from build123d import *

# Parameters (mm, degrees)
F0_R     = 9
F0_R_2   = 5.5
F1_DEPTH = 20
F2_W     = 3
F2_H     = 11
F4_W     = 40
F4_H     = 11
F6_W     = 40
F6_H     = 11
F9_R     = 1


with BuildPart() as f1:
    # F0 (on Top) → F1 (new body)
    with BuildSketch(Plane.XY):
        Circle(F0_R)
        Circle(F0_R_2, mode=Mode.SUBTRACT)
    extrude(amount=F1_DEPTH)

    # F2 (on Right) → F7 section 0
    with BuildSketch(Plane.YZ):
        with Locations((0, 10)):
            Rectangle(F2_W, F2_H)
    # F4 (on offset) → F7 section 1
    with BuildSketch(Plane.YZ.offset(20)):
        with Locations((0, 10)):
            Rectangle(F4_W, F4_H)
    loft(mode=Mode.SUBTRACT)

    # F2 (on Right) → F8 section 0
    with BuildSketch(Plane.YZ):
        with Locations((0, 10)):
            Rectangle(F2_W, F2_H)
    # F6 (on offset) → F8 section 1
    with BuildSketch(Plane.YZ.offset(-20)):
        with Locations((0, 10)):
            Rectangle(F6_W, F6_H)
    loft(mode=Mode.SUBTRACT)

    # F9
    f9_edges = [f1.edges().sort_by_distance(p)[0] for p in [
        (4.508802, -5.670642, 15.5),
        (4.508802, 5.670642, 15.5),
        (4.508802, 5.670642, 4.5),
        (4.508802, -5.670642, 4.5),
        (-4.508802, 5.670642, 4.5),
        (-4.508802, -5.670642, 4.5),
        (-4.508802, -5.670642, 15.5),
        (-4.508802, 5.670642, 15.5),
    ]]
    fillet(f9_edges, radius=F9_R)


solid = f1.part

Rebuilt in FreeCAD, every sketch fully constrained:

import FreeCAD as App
import Part
import Sketcher

V = App.Vector
Q = App.Units.Quantity


def edges_at(feature, points):
    """Names of the edges that pass closest to the given points."""
    edges = feature.Shape.Edges
    near = lambda p: min(range(len(edges)), key=lambda i: edges[i].distToShape(Part.Vertex(*p))[0])
    return sorted({f"Edge{near(p) + 1}" for p in points})

doc = App.newDocument("Part")
body = doc.addObject("PartDesign::Body", "Body")

# Sketch on XY plane
sketch1 = body.newObject("Sketcher::SketchObject", "Sketch")
sketch1.AttachmentSupport = (doc.getObject("XY_Plane"), [""])
sketch1.MapMode = "FlatFace"
sketch1.addGeometry([
    Part.Circle(V(0, 0, 0), V(0, 0, 1), 9),
    Part.Circle(V(0, 0, 0), V(0, 0, 1), 5.5),
], False)
sketch1.addConstraint([
    Sketcher.Constraint("Coincident", 0, 3, -1, 1),
    Sketcher.Constraint("Coincident", 1, 3, -1, 1),
    Sketcher.Constraint("Diameter", 0, Q("18 mm")),
    Sketcher.Constraint("Diameter", 1, Q("11 mm")),
])
pad1 = body.newObject("PartDesign::Pad", "Pad")
pad1.Profile = sketch1
pad1.Length = 20

# Sketch on YZ plane
sketch2 = body.newObject("Sketcher::SketchObject", "Sketch001")
sketch2.AttachmentSupport = (doc.getObject("YZ_Plane"), [""])
sketch2.MapMode = "FlatFace"
sketch2.addGeometry([
    Part.LineSegment(V(-1.5, 15.5, 0), V(-1.5, 4.5, 0)),
    Part.LineSegment(V(-1.5, 4.5, 0), V(1.5, 4.5, 0)),
    Part.LineSegment(V(1.5, 4.5, 0), V(1.5, 15.5, 0)),
    Part.LineSegment(V(1.5, 15.5, 0), V(-1.5, 15.5, 0)),
], False)
sketch2.addConstraint([
    Sketcher.Constraint("Coincident", 0, 2, 1, 1),
    Sketcher.Constraint("Coincident", 1, 2, 2, 1),
    Sketcher.Constraint("Coincident", 2, 2, 3, 1),
    Sketcher.Constraint("Coincident", 3, 2, 0, 1),
    Sketcher.Constraint("Vertical", 0),
    Sketcher.Constraint("Horizontal", 1),
    Sketcher.Constraint("Vertical", 2),
    Sketcher.Constraint("Horizontal", 3),
    Sketcher.Constraint("DistanceX", 1, 1, 1, 2, Q("3 mm")),
    Sketcher.Constraint("DistanceY", 0, 2, 0, 1, Q("11 mm")),
    Sketcher.Constraint("DistanceX", 0, 2, -1, 1, Q("1.5 mm")),
    Sketcher.Constraint("DistanceY", -1, 1, 0, 2, Q("4.5 mm")),
])

# Sketch on YZ plane
sketch3 = body.newObject("Sketcher::SketchObject", "Sketch002")
sketch3.AttachmentSupport = (doc.getObject("YZ_Plane"), [""])
sketch3.MapMode = "FlatFace"
sketch3.AttachmentOffset = App.Placement(V(0, 0, 20), App.Rotation())
sketch3.addGeometry([
    Part.LineSegment(V(-20, 15.5, 0), V(-20, 4.5, 0)),
    Part.LineSegment(V(-20, 4.5, 0), V(20, 4.5, 0)),
    Part.LineSegment(V(20, 4.5, 0), V(20, 15.5, 0)),
    Part.LineSegment(V(20, 15.5, 0), V(-20, 15.5, 0)),
], False)
sketch3.addConstraint([
    Sketcher.Constraint("Coincident", 0, 2, 1, 1),
    Sketcher.Constraint("Coincident", 1, 2, 2, 1),
    Sketcher.Constraint("Coincident", 2, 2, 3, 1),
    Sketcher.Constraint("Coincident", 3, 2, 0, 1),
    Sketcher.Constraint("Vertical", 0),
    Sketcher.Constraint("Horizontal", 1),
    Sketcher.Constraint("Vertical", 2),
    Sketcher.Constraint("Horizontal", 3),
    Sketcher.Constraint("DistanceX", 1, 1, 1, 2, Q("40 mm")),
    Sketcher.Constraint("DistanceY", 0, 2, 0, 1, Q("11 mm")),
    Sketcher.Constraint("DistanceX", 0, 2, -1, 1, Q("20 mm")),
    Sketcher.Constraint("DistanceY", -1, 1, 0, 2, Q("4.5 mm")),
])

subtractiveloft = body.newObject("PartDesign::SubtractiveLoft", "SubtractiveLoft")
subtractiveloft.Profile = sketch2
subtractiveloft.Sections = [sketch3]

# Sketch on YZ plane
sketch4 = body.newObject("Sketcher::SketchObject", "Sketch003")
sketch4.AttachmentSupport = (doc.getObject("YZ_Plane"), [""])
sketch4.MapMode = "FlatFace"
sketch4.addGeometry([
    Part.LineSegment(V(-1.5, 15.5, 0), V(-1.5, 4.5, 0)),
    Part.LineSegment(V(-1.5, 4.5, 0), V(1.5, 4.5, 0)),
    Part.LineSegment(V(1.5, 4.5, 0), V(1.5, 15.5, 0)),
    Part.LineSegment(V(1.5, 15.5, 0), V(-1.5, 15.5, 0)),
], False)
sketch4.addConstraint([
    Sketcher.Constraint("Coincident", 0, 2, 1, 1),
    Sketcher.Constraint("Coincident", 1, 2, 2, 1),
    Sketcher.Constraint("Coincident", 2, 2, 3, 1),
    Sketcher.Constraint("Coincident", 3, 2, 0, 1),
    Sketcher.Constraint("Vertical", 0),
    Sketcher.Constraint("Horizontal", 1),
    Sketcher.Constraint("Vertical", 2),
    Sketcher.Constraint("Horizontal", 3),
    Sketcher.Constraint("DistanceX", 1, 1, 1, 2, Q("3 mm")),
    Sketcher.Constraint("DistanceY", 0, 2, 0, 1, Q("11 mm")),
    Sketcher.Constraint("DistanceX", 0, 2, -1, 1, Q("1.5 mm")),
    Sketcher.Constraint("DistanceY", -1, 1, 0, 2, Q("4.5 mm")),
])

# Sketch on YZ plane
sketch5 = body.newObject("Sketcher::SketchObject", "Sketch004")
sketch5.AttachmentSupport = (doc.getObject("YZ_Plane"), [""])
sketch5.MapMode = "FlatFace"
sketch5.AttachmentOffset = App.Placement(V(0, 0, -20), App.Rotation())
sketch5.addGeometry([
    Part.LineSegment(V(-20, 15.5, 0), V(-20, 4.5, 0)),
    Part.LineSegment(V(-20, 4.5, 0), V(20, 4.5, 0)),
    Part.LineSegment(V(20, 4.5, 0), V(20, 15.5, 0)),
    Part.LineSegment(V(20, 15.5, 0), V(-20, 15.5, 0)),
], False)
sketch5.addConstraint([
    Sketcher.Constraint("Coincident", 0, 2, 1, 1),
    Sketcher.Constraint("Coincident", 1, 2, 2, 1),
    Sketcher.Constraint("Coincident", 2, 2, 3, 1),
    Sketcher.Constraint("Coincident", 3, 2, 0, 1),
    Sketcher.Constraint("Vertical", 0),
    Sketcher.Constraint("Horizontal", 1),
    Sketcher.Constraint("Vertical", 2),
    Sketcher.Constraint("Horizontal", 3),
    Sketcher.Constraint("DistanceX", 1, 1, 1, 2, Q("40 mm")),
    Sketcher.Constraint("DistanceY", 0, 2, 0, 1, Q("11 mm")),
    Sketcher.Constraint("DistanceX", 0, 2, -1, 1, Q("20 mm")),
    Sketcher.Constraint("DistanceY", -1, 1, 0, 2, Q("4.5 mm")),
])

subtractiveloft2 = body.newObject("PartDesign::SubtractiveLoft", "SubtractiveLoft001")
subtractiveloft2.Profile = sketch4
subtractiveloft2.Sections = [sketch5]
doc.recompute()

fillet = body.newObject("PartDesign::Fillet", "Fillet")
fillet.Base = (subtractiveloft2, edges_at(subtractiveloft2, [
    (4.509, -5.671, 15.5),
    (4.509, 5.671, 15.5),
    (4.509, 5.671, 4.5),
    (4.509, -5.671, 4.5),
    (-4.509, 5.671, 4.5),
    (-4.509, -5.671, 4.5),
    (-4.509, -5.671, 15.5),
    (-4.509, 5.671, 15.5),
]))
fillet.Radius = 1

doc.recompute()
